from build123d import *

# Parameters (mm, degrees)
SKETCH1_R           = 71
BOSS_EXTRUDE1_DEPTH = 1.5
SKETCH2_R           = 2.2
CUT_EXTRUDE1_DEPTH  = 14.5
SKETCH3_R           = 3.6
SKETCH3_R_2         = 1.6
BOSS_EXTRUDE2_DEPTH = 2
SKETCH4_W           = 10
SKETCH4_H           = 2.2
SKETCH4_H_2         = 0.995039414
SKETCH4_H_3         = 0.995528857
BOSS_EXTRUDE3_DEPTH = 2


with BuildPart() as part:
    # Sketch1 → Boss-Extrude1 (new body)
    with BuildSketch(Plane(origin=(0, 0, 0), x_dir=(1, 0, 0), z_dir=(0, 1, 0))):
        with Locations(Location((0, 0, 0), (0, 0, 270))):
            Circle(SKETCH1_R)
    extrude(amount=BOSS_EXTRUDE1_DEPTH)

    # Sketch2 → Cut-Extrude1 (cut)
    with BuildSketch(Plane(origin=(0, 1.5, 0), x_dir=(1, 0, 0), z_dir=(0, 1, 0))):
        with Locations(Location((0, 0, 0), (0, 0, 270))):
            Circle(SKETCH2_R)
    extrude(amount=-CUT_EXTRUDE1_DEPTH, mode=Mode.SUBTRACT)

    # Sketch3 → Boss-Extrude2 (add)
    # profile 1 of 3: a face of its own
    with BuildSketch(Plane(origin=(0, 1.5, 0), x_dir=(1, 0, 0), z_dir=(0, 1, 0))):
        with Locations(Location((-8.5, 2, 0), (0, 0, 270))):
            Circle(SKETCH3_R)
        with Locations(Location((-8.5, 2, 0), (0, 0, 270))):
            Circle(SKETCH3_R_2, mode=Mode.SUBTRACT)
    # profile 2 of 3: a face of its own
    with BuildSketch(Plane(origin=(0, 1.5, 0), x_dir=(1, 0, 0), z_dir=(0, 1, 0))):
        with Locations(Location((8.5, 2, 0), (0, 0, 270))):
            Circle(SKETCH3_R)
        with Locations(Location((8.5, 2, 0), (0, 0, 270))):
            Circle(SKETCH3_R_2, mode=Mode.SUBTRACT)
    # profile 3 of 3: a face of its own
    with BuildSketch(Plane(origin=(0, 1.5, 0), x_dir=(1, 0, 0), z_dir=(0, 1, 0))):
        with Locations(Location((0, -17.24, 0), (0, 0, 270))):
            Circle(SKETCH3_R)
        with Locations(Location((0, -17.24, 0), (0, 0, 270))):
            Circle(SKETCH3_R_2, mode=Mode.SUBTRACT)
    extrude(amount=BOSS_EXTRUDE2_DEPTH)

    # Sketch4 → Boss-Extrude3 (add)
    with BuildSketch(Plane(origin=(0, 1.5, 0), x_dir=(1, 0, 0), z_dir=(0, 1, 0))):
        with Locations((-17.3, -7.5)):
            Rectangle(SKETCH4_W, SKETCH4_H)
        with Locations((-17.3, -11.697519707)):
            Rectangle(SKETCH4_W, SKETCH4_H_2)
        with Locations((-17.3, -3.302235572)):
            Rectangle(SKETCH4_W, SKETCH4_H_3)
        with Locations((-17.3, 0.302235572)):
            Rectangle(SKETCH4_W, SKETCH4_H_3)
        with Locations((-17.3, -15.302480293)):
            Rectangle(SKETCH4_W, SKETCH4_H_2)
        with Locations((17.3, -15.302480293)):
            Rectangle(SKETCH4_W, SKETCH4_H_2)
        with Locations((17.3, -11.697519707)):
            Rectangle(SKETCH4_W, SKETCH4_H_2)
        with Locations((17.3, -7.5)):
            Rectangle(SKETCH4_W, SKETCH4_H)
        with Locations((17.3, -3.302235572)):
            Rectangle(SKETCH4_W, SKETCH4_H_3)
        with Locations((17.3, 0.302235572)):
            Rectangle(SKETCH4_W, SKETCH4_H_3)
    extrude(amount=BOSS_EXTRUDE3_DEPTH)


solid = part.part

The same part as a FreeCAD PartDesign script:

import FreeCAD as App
import Part
import Sketcher
from FreeCAD import Vector

doc = App.newDocument("Part")
body = doc.addObject("PartDesign::Body", "Body")

# Sketch on XZ plane
sketch1 = body.newObject("Sketcher::SketchObject", "Sketch")
sketch1.AttachmentSupport = (doc.getObject("XZ_Plane"), [""])
sketch1.MapMode = "FlatFace"
sketch1.addGeometry(Part.Circle(Vector(0, 0, 0), Vector(0, 0, 1), 71), False)
sketch1.addConstraint(Sketcher.Constraint("Coincident", 0, 3, -1, 1))
sketch1.addConstraint(Sketcher.Constraint("Diameter", 0, 142.0))
pad1 = body.newObject("PartDesign::Pad", "Pad")
pad1.Profile = sketch1
pad1.Length = 1.5
pad1.Reversed = True

# Sketch on XZ plane
sketch2 = body.newObject("Sketcher::SketchObject", "Sketch001")
sketch2.AttachmentSupport = (doc.getObject("XZ_Plane"), [""])
sketch2.MapMode = "FlatFace"
sketch2.AttachmentOffset = App.Placement(Vector(0, 0, -1.5), App.Rotation())
sketch2.addGeometry(Part.Circle(Vector(0, 0, 0), Vector(0, 0, 1), 2.2), False)
sketch2.addConstraint(Sketcher.Constraint("Coincident", 0, 3, -1, 1))
sketch2.addConstraint(Sketcher.Constraint("Diameter", 0, 4.4))
pocket1 = body.newObject("PartDesign::Pocket", "Pocket")
pocket1.Profile = sketch2
pocket1.Length = 14.5
pocket1.Reversed = True

# Sketch on XZ plane
sketch3 = body.newObject("Sketcher::SketchObject", "Sketch002")
sketch3.AttachmentSupport = (doc.getObject("XZ_Plane"), [""])
sketch3.MapMode = "FlatFace"
sketch3.AttachmentOffset = App.Placement(Vector(0, 0, -1.5), App.Rotation())
sketch3.addGeometry(Part.Circle(Vector(-8.5, -2, 0), Vector(0, 0, 1), 3.6), False)
sketch3.addGeometry(Part.Circle(Vector(-8.5, -2, 0), Vector(0, 0, 1), 1.6), False)
sketch3.addGeometry(Part.Circle(Vector(8.5, -2, 0), Vector(0, 0, 1), 3.6), False)
sketch3.addGeometry(Part.Circle(Vector(8.5, -2, 0), Vector(0, 0, 1), 1.6), False)
sketch3.addGeometry(Part.Circle(Vector(0, 17.2, 0), Vector(0, 0, 1), 3.6), False)
sketch3.addGeometry(Part.Circle(Vector(0, 17.2, 0), Vector(0, 0, 1), 1.6), False)
sketch3.addConstraint(Sketcher.Constraint("Coincident", 1, 3, 0, 3))
sketch3.addConstraint(Sketcher.Constraint("Coincident", 3, 3, 2, 3))
sketch3.addConstraint(Sketcher.Constraint("Coincident", 5, 3, 4, 3))
sketch3.addConstraint(Sketcher.Constraint("Equal", 0, 2))
sketch3.addConstraint(Sketcher.Constraint("Equal", 1, 3))
sketch3.addConstraint(Sketcher.Constraint("Equal", 2, 4))
sketch3.addConstraint(Sketcher.Constraint("Equal", 3, 5))
sketch3.addConstraint(Sketcher.Constraint("Symmetric", 0, 3, 2, 3, -2))
sketch3.addConstraint(Sketcher.Constraint("PointOnObject", 4, 3, -2))
sketch3.addConstraint(Sketcher.Constraint("Diameter", 0, 7.2))
sketch3.addConstraint(Sketcher.Constraint("Diameter", 1, 3.2))
sketch3.addConstraint(Sketcher.Constraint("DistanceY", 0, 3, -1, 1, 2.0))
sketch3.addConstraint(Sketcher.Constraint("DistanceX", 0, 3, 2, 3, 17.0))
sketch3.addConstraint(Sketcher.Constraint("DistanceY", -1, 1, 4, 3, 17.24))
pad2 = body.newObject("PartDesign::Pad", "Pad001")
pad2.Profile = sketch3
pad2.Length = 2
pad2.Reversed = True

# Sketch on XZ plane
sketch4 = body.newObject("Sketcher::SketchObject", "Sketch003")
sketch4.AttachmentSupport = (doc.getObject("XZ_Plane"), [""])
sketch4.MapMode = "FlatFace"
sketch4.AttachmentOffset = App.Placement(Vector(0, 0, -1.5), App.Rotation())
sketch4.addGeometry(Part.LineSegment(Vector(-22.3, 6.4, 0), Vector(-22.3, 8.6, 0)), False)
sketch4.addGeometry(Part.LineSegment(Vector(-22.3, 8.6, 0), Vector(-12.3, 8.6, 0)), False)
sketch4.addGeometry(Part.LineSegment(Vector(-12.3, 8.6, 0), Vector(-12.3, 6.4, 0)), False)
sketch4.addGeometry(Part.LineSegment(Vector(-12.3, 6.4, 0), Vector(-22.3, 6.4, 0)), False)
sketch4.addGeometry(Part.LineSegment(Vector(-22.3, 11.2, 0), Vector(-22.3, 12.2, 0)), False)
sketch4.addGeometry(Part.LineSegment(Vector(-22.3, 12.2, 0), Vector(-12.3, 12.2, 0)), False)
sketch4.addGeometry(Part.LineSegment(Vector(-12.3, 12.2, 0), Vector(-12.3, 11.2, 0)), False)
sketch4.addGeometry(Part.LineSegment(Vector(-12.3, 11.2, 0), Vector(-22.3, 11.2, 0)), False)
sketch4.addGeometry(Part.LineSegment(Vector(-22.3, 2.8, 0), Vector(-22.3, 3.8, 0)), False)
sketch4.addGeometry(Part.LineSegment(Vector(-22.3, 3.8, 0), Vector(-12.3, 3.8, 0)), False)
sketch4.addGeometry(Part.LineSegment(Vector(-12.3, 3.8, 0), Vector(-12.3, 2.8, 0)), False)
sketch4.addGeometry(Part.LineSegment(Vector(-12.3, 2.8, 0), Vector(-22.3, 2.8, 0)), False)
sketch4.addGeometry(Part.LineSegment(Vector(-22.3, -0.8, 0), Vector(-22.3, 0.2, 0)), False)
sketch4.addGeometry(Part.LineSegment(Vector(-22.3, 0.2, 0), Vector(-12.3, 0.2, 0)), False)
sketch4.addGeometry(Part.LineSegment(Vector(-12.3, 0.2, 0), Vector(-12.3, -0.8, 0)), False)
sketch4.addGeometry(Part.LineSegment(Vector(-12.3, -0.8, 0), Vector(-22.3, -0.8, 0)), False)
sketch4.addGeometry(Part.LineSegment(Vector(-22.3, 14.8, 0), Vector(-22.3, 15.8, 0)), False)
sketch4.addGeometry(Part.LineSegment(Vector(-22.3, 15.8, 0), Vector(-12.3, 15.8, 0)), False)
sketch4.addGeometry(Part.LineSegment(Vector(-12.3, 15.8, 0), Vector(-12.3, 14.8, 0)), False)
sketch4.addGeometry(Part.LineSegment(Vector(-12.3, 14.8, 0), Vector(-22.3, 14.8, 0)), False)
sketch4.addGeometry(Part.LineSegment(Vector(12.3, 14.8, 0), Vector(12.3, 15.8, 0)), False)
sketch4.addGeometry(Part.LineSegment(Vector(12.3, 15.8, 0), Vector(22.3, 15.8, 0)), False)
sketch4.addGeometry(Part.LineSegment(Vector(22.3, 15.8, 0), Vector(22.3, 14.8, 0)), False)
sketch4.addGeometry(Part.LineSegment(Vector(22.3, 14.8, 0), Vector(12.3, 14.8, 0)), False)
sketch4.addGeometry(Part.LineSegment(Vector(12.3, 11.2, 0), Vector(12.3, 12.2, 0)), False)
sketch4.addGeometry(Part.LineSegment(Vector(12.3, 12.2, 0), Vector(22.3, 12.2, 0)), False)
sketch4.addGeometry(Part.LineSegment(Vector(22.3, 12.2, 0), Vector(22.3, 11.2, 0)), False)
sketch4.addGeometry(Part.LineSegment(Vector(22.3, 11.2, 0), Vector(12.3, 11.2, 0)), False)
sketch4.addGeometry(Part.LineSegment(Vector(12.3, 6.4, 0), Vector(12.3, 8.6, 0)), False)
sketch4.addGeometry(Part.LineSegment(Vector(12.3, 8.6, 0), Vector(22.3, 8.6, 0)), False)
sketch4.addGeometry(Part.LineSegment(Vector(22.3, 8.6, 0), Vector(22.3, 6.4, 0)), False)
sketch4.addGeometry(Part.LineSegment(Vector(22.3, 6.4, 0), Vector(12.3, 6.4, 0)), False)
sketch4.addGeometry(Part.LineSegment(Vector(12.3, 2.8, 0), Vector(12.3, 3.8, 0)), False)
sketch4.addGeometry(Part.LineSegment(Vector(12.3, 3.8, 0), Vector(22.3, 3.8, 0)), False)
sketch4.addGeometry(Part.LineSegment(Vector(22.3, 3.8, 0), Vector(22.3, 2.8, 0)), False)
sketch4.addGeometry(Part.LineSegment(Vector(22.3, 2.8, 0), Vector(12.3, 2.8, 0)), False)
sketch4.addGeometry(Part.LineSegment(Vector(12.3, -0.8, 0), Vector(12.3, 0.2, 0)), False)
sketch4.addGeometry(Part.LineSegment(Vector(12.3, 0.2, 0), Vector(22.3, 0.2, 0)), False)
sketch4.addGeometry(Part.LineSegment(Vector(22.3, 0.2, 0), Vector(22.3, -0.8, 0)), False)
sketch4.addGeometry(Part.LineSegment(Vector(22.3, -0.8, 0), Vector(12.3, -0.8, 0)), False)
sketch4.addConstraint(Sketcher.Constraint("Coincident", 0, 2, 1, 1))
sketch4.addConstraint(Sketcher.Constraint("Coincident", 1, 2, 2, 1))
sketch4.addConstraint(Sketcher.Constraint("Coincident", 2, 2, 3, 1))
sketch4.addConstraint(Sketcher.Constraint("Coincident", 3, 2, 0, 1))
sketch4.addConstraint(Sketcher.Constraint("Coincident", 4, 2, 5, 1))
sketch4.addConstraint(Sketcher.Constraint("Coincident", 5, 2, 6, 1))
sketch4.addConstraint(Sketcher.Constraint("Coincident", 6, 2, 7, 1))
sketch4.addConstraint(Sketcher.Constraint("Coincident", 7, 2, 4, 1))
sketch4.addConstraint(Sketcher.Constraint("Coincident", 8, 2, 9, 1))
sketch4.addConstraint(Sketcher.Constraint("Coincident", 9, 2, 10, 1))
sketch4.addConstraint(Sketcher.Constraint("Coincident", 10, 2, 11, 1))
sketch4.addConstraint(Sketcher.Constraint("Coincident", 11, 2, 8, 1))
sketch4.addConstraint(Sketcher.Constraint("Coincident", 12, 2, 13, 1))
sketch4.addConstraint(Sketcher.Constraint("Coincident", 13, 2, 14, 1))
sketch4.addConstraint(Sketcher.Constraint("Coincident", 14, 2, 15, 1))
sketch4.addConstraint(Sketcher.Constraint("Coincident", 15, 2, 12, 1))
sketch4.addConstraint(Sketcher.Constraint("Coincident", 16, 2, 17, 1))
sketch4.addConstraint(Sketcher.Constraint("Coincident", 17, 2, 18, 1))
sketch4.addConstraint(Sketcher.Constraint("Coincident", 18, 2, 19, 1))
sketch4.addConstraint(Sketcher.Constraint("Coincident", 19, 2, 16, 1))
sketch4.addConstraint(Sketcher.Constraint("Coincident", 20, 2, 21, 1))
sketch4.addConstraint(Sketcher.Constraint("Coincident", 21, 2, 22, 1))
sketch4.addConstraint(Sketcher.Constraint("Coincident", 22, 2, 23, 1))
sketch4.addConstraint(Sketcher.Constraint("Coincident", 23, 2, 20, 1))
sketch4.addConstraint(Sketcher.Constraint("Coincident", 24, 2, 25, 1))
sketch4.addConstraint(Sketcher.Constraint("Coincident", 25, 2, 26, 1))
sketch4.addConstraint(Sketcher.Constraint("Coincident", 26, 2, 27, 1))
sketch4.addConstraint(Sketcher.Constraint("Coincident", 27, 2, 24, 1))
sketch4.addConstraint(Sketcher.Constraint("Coincident", 28, 2, 29, 1))
sketch4.addConstraint(Sketcher.Constraint("Coincident", 29, 2, 30, 1))
sketch4.addConstraint(Sketcher.Constraint("Coincident", 30, 2, 31, 1))
sketch4.addConstraint(Sketcher.Constraint("Coincident", 31, 2, 28, 1))
sketch4.addConstraint(Sketcher.Constraint("Coincident", 32, 2, 33, 1))
sketch4.addConstraint(Sketcher.Constraint("Coincident", 33, 2, 34, 1))
sketch4.addConstraint(Sketcher.Constraint("Coincident", 34, 2, 35, 1))
sketch4.addConstraint(Sketcher.Constraint("Coincident", 35, 2, 32, 1))
sketch4.addConstraint(Sketcher.Constraint("Coincident", 36, 2, 37, 1))
sketch4.addConstraint(Sketcher.Constraint("Coincident", 37, 2, 38, 1))
sketch4.addConstraint(Sketcher.Constraint("Coincident", 38, 2, 39, 1))
sketch4.addConstraint(Sketcher.Constraint("Coincident", 39, 2, 36, 1))
sketch4.addConstraint(Sketcher.Constraint("Vertical", 0))
sketch4.addConstraint(Sketcher.Constraint("Horizontal", 1))
sketch4.addConstraint(Sketcher.Constraint("Vertical", 2))
sketch4.addConstraint(Sketcher.Constraint("Horizontal", 3))
sketch4.addConstraint(Sketcher.Constraint("Vertical", 4))
sketch4.addConstraint(Sketcher.Constraint("Horizontal", 5))
sketch4.addConstraint(Sketcher.Constraint("Vertical", 6))
sketch4.addConstraint(Sketcher.Constraint("Horizontal", 7))
sketch4.addConstraint(Sketcher.Constraint("Vertical", 8))
sketch4.addConstraint(Sketcher.Constraint("Horizontal", 9))
sketch4.addConstraint(Sketcher.Constraint("Vertical", 10))
sketch4.addConstraint(Sketcher.Constraint("Horizontal", 11))
sketch4.addConstraint(Sketcher.Constraint("Vertical", 12))
sketch4.addConstraint(Sketcher.Constraint("Horizontal", 13))
sketch4.addConstraint(Sketcher.Constraint("Vertical", 14))
sketch4.addConstraint(Sketcher.Constraint("Horizontal", 15))
sketch4.addConstraint(Sketcher.Constraint("Vertical", 16))
sketch4.addConstraint(Sketcher.Constraint("Horizontal", 17))
sketch4.addConstraint(Sketcher.Constraint("Vertical", 18))
sketch4.addConstraint(Sketcher.Constraint("Horizontal", 19))
sketch4.addConstraint(Sketcher.Constraint("Vertical", 20))
sketch4.addConstraint(Sketcher.Constraint("Horizontal", 21))
sketch4.addConstraint(Sketcher.Constraint("Vertical", 22))
sketch4.addConstraint(Sketcher.Constraint("Horizontal", 23))
sketch4.addConstraint(Sketcher.Constraint("Vertical", 24))
sketch4.addConstraint(Sketcher.Constraint("Horizontal", 25))
sketch4.addConstraint(Sketcher.Constraint("Vertical", 26))
sketch4.addConstraint(Sketcher.Constraint("Horizontal", 27))
sketch4.addConstraint(Sketcher.Constraint("Vertical", 28))
sketch4.addConstraint(Sketcher.Constraint("Horizontal", 29))
sketch4.addConstraint(Sketcher.Constraint("Vertical", 30))
sketch4.addConstraint(Sketcher.Constraint("Horizontal", 31))
sketch4.addConstraint(Sketcher.Constraint("Vertical", 32))
sketch4.addConstraint(Sketcher.Constraint("Horizontal", 33))
sketch4.addConstraint(Sketcher.Constraint("Vertical", 34))
sketch4.addConstraint(Sketcher.Constraint("Horizontal", 35))
sketch4.addConstraint(Sketcher.Constraint("Vertical", 36))
sketch4.addConstraint(Sketcher.Constraint("Horizontal", 37))
sketch4.addConstraint(Sketcher.Constraint("Vertical", 38))
sketch4.addConstraint(Sketcher.Constraint("Horizontal", 39))
sketch4.addConstraint(Sketcher.Constraint("Symmetric", 17, 2, 20, 2, -2))
sketch4.addConstraint(Sketcher.Constraint("Symmetric", 19, 2, 22, 2, -2))
sketch4.addConstraint(Sketcher.Constraint("Symmetric", 5, 2, 24, 2, -2))
sketch4.addConstraint(Sketcher.Constraint("Symmetric", 7, 2, 26, 2, -2))
sketch4.addConstraint(Sketcher.Constraint("Symmetric", 1, 2, 28, 2, -2))
sketch4.addConstraint(Sketcher.Constraint("Symmetric", 3, 2, 30, 2, -2))
sketch4.addConstraint(Sketcher.Constraint("Symmetric", 9, 2, 32, 2, -2))
sketch4.addConstraint(Sketcher.Constraint("Symmetric", 11, 2, 34, 2, -2))
sketch4.addConstraint(Sketcher.Constraint("Symmetric", 13, 2, 36, 2, -2))
sketch4.addConstraint(Sketcher.Constraint("Symmetric", 15, 2, 38, 2, -2))
sketch4.addConstraint(Sketcher.Constraint("Vertical", 3, 2, 4, 2))
sketch4.addConstraint(Sketcher.Constraint("Vertical", 2, 2, 5, 2))
sketch4.addConstraint(Sketcher.Constraint("Vertical", 7, 2, 8, 2))
sketch4.addConstraint(Sketcher.Constraint("Vertical", 6, 2, 9, 2))
sketch4.addConstraint(Sketcher.Constraint("Vertical", 11, 2, 12, 2))
sketch4.addConstraint(Sketcher.Constraint("Vertical", 10, 2, 13, 2))
sketch4.addConstraint(Sketcher.Constraint("Vertical", 15, 2, 16, 2))
sketch4.addConstraint(Sketcher.Constraint("Vertical", 14, 2, 17, 2))
sketch4.addConstraint(Sketcher.Constraint("Equal", 10, 12))
sketch4.addConstraint(Sketcher.Constraint("Equal", 6, 16))
sketch4.addConstraint(Sketcher.Constraint("DistanceX", 1, 1, 1, 2, 10.0))
sketch4.addConstraint(Sketcher.Constraint("DistanceY", 0, 1, 0, 2, 2.2))
sketch4.addConstraint(Sketcher.Constraint("DistanceX", 0, 2, -1, 1, 22.3))
sketch4.addConstraint(Sketcher.Constraint("DistanceY", -1, 1, 0, 2, 8.6))
sketch4.addConstraint(Sketcher.Constraint("DistanceY", -1, 1, 6, 2, 11.2))
sketch4.addConstraint(Sketcher.Constraint("DistanceY", -1, 1, 8, 2, 3.8))
sketch4.addConstraint(Sketcher.Constraint("DistanceY", 14, 2, -1, 1, 0.8))
sketch4.addConstraint(Sketcher.Constraint("DistanceY", -1, 1, 16, 2, 15.8))
sketch4.addConstraint(Sketcher.Constraint("DistanceY", 4, 1, 4, 2, 0.995039))
sketch4.addConstraint(Sketcher.Constraint("DistanceY", 8, 1, 8, 2, 0.995529))
pad3 = body.newObject("PartDesign::Pad", "Pad002")
pad3.Profile = sketch4
pad3.Length = 2
pad3.Reversed = True

doc.recompute()
